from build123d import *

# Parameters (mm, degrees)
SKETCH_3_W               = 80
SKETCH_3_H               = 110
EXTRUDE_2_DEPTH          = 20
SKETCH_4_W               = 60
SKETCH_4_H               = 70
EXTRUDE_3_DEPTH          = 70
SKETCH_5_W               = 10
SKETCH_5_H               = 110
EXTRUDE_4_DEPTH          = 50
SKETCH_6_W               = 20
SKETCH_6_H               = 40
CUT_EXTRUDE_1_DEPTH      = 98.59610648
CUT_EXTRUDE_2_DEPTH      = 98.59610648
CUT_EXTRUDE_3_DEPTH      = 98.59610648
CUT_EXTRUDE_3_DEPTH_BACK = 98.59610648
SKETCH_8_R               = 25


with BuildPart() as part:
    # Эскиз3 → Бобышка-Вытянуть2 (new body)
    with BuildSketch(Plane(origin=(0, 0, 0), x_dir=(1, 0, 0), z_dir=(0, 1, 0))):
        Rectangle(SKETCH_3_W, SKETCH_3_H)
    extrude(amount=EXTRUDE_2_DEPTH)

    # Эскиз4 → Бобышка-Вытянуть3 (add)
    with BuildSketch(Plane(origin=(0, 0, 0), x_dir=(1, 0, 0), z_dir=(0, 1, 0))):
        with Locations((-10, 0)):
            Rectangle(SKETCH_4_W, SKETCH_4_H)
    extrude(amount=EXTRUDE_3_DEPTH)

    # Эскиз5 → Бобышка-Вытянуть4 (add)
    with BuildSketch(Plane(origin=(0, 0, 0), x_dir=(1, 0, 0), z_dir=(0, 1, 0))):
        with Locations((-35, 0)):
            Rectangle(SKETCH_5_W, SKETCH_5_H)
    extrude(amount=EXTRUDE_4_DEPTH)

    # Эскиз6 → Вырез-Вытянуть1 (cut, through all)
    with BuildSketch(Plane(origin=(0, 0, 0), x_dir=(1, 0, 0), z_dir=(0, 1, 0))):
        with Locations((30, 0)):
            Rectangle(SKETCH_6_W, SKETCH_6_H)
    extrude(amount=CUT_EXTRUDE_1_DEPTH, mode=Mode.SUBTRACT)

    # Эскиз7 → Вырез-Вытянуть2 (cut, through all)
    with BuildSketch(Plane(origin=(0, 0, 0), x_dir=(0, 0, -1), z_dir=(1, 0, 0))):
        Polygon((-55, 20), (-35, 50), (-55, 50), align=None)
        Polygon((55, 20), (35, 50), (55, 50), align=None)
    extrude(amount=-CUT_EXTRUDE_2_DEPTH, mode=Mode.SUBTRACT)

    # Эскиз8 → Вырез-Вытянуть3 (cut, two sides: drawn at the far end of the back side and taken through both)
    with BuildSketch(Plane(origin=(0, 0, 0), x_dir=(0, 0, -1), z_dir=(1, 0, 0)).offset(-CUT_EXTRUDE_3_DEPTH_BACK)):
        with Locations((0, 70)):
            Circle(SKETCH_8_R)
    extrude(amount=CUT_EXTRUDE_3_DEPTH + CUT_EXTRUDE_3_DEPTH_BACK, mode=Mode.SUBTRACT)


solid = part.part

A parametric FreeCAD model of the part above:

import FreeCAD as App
import Part
import Sketcher
Q = App.Units.Quantity


def add_polygon(sketch, points):
    """Adds a closed chain of lines whose ends are joined by coincident constraints."""
    first, n = sketch.GeometryCount, len(points)
    for a, b in zip(points, points[1:] + points[:1]):
        sketch.addGeometry(Part.LineSegment(App.Vector(*a, 0), App.Vector(*b, 0)), False)
    for i in range(n):
        sketch.addConstraint(Sketcher.Constraint("Coincident", first + i, 2, first + (i + 1) % n, 1))

doc = App.newDocument("Part")
params = doc.addObject("Spreadsheet::Sheet", "Params")
for row, (alias, value) in enumerate([
    ("sketch1_width", "80 mm"),
    ("sketch1_height", "110 mm"),
    ("pad1_length", "20 mm"),
    ("sketch2_width", "60 mm"),
    ("sketch2_height", "70 mm"),
    ("pad2_length", "70 mm"),
    ("sketch3_width", "10 mm"),
    ("sketch3_height", "110 mm"),
    ("pad3_length", "50 mm"),
    ("sketch4_width", "20 mm"),
    ("sketch4_height", "40 mm"),
    ("sketch5_width", "30 mm"),
    ("sketch5_height", "20 mm"),
    ("sketch6_diameter", "50 mm"),
], start=1):
    params.set(f"A{row}", alias)
    params.set(f"B{row}", "=" + value)
    params.setAlias(f"B{row}", alias)

body = doc.addObject("PartDesign::Body", "Body")

# Sketch on XZ plane
sketch1 = body.newObject("Sketcher::SketchObject", "Sketch")
sketch1.AttachmentSupport = (doc.getObject("XZ_Plane"), [""])
sketch1.MapMode = "FlatFace"
add_polygon(sketch1, [(-40, -55), (-40, 55), (40, 55), (40, -55)])  # lines 0-3
sketch1.addConstraint(Sketcher.Constraint("Vertical", 0))
sketch1.addConstraint(Sketcher.Constraint("Horizontal", 1))
sketch1.addConstraint(Sketcher.Constraint("Vertical", 2))
sketch1.addConstraint(Sketcher.Constraint("Horizontal", 3))
sketch1.addConstraint(Sketcher.Constraint("Symmetric", 0, 2, 2, 2, -1, 1))
sketch1.addConstraint(Sketcher.Constraint("DistanceX", 1, 1, 1, 2, Q("80 mm")))
sketch1.addConstraint(Sketcher.Constraint("DistanceY", 0, 1, 0, 2, Q("110 mm")))
sketch1.setExpression("Constraints[9]", "Params.sketch1_width")
sketch1.setExpression("Constraints[10]", "Params.sketch1_height")
pad1 = body.newObject("PartDesign::Pad", "Pad")
pad1.Profile = sketch1
pad1.setExpression("Length", "Params.pad1_length")
pad1.Reversed = True

# Sketch on XZ plane
sketch2 = body.newObject("Sketcher::SketchObject", "Sketch001")
sketch2.AttachmentSupport = (doc.getObject("XZ_Plane"), [""])
sketch2.MapMode = "FlatFace"
add_polygon(sketch2, [(-40, -35), (-40, 35), (20, 35), (20, -35)])  # lines 0-3
sketch2.addConstraint(Sketcher.Constraint("Vertical", 0))
sketch2.addConstraint(Sketcher.Constraint("Horizontal", 1))
sketch2.addConstraint(Sketcher.Constraint("Vertical", 2))
sketch2.addConstraint(Sketcher.Constraint("Horizontal", 3))
sketch2.addConstraint(Sketcher.Constraint("DistanceX", 1, 1, 1, 2, Q("60 mm")))
sketch2.addConstraint(Sketcher.Constraint("DistanceY", 0, 1, 0, 2, Q("70 mm")))
sketch2.addConstraint(Sketcher.Constraint("DistanceX", 0, 2, -1, 1, Q("40 mm")))
sketch2.addConstraint(Sketcher.Constraint("DistanceY", -1, 1, 0, 2, Q("35 mm")))
sketch2.setExpression("Constraints[8]", "Params.sketch2_width")
sketch2.setExpression("Constraints[9]", "Params.sketch2_height")
pad2 = body.newObject("PartDesign::Pad", "Pad001")
pad2.Profile = sketch2
pad2.setExpression("Length", "Params.pad2_length")
pad2.Reversed = True

# Sketch on XZ plane
sketch3 = body.newObject("Sketcher::SketchObject", "Sketch002")
sketch3.AttachmentSupport = (doc.getObject("XZ_Plane"), [""])
sketch3.MapMode = "FlatFace"
add_polygon(sketch3, [(-40, -55), (-40, 55), (-30, 55), (-30, -55)])  # lines 0-3
sketch3.addConstraint(Sketcher.Constraint("Vertical", 0))
sketch3.addConstraint(Sketcher.Constraint("Horizontal", 1))
sketch3.addConstraint(Sketcher.Constraint("Vertical", 2))
sketch3.addConstraint(Sketcher.Constraint("Horizontal", 3))
sketch3.addConstraint(Sketcher.Constraint("DistanceX", 1, 1, 1, 2, Q("10 mm")))
sketch3.addConstraint(Sketcher.Constraint("DistanceY", 0, 1, 0, 2, Q("110 mm")))
sketch3.addConstraint(Sketcher.Constraint("DistanceX", 0, 2, -1, 1, Q("40 mm")))
sketch3.addConstraint(Sketcher.Constraint("DistanceY", -1, 1, 0, 2, Q("55 mm")))
sketch3.setExpression("Constraints[8]", "Params.sketch3_width")
sketch3.setExpression("Constraints[9]", "Params.sketch3_height")
pad3 = body.newObject("PartDesign::Pad", "Pad002")
pad3.Profile = sketch3
pad3.setExpression("Length", "Params.pad3_length")
pad3.Reversed = True

# Sketch on XZ plane
sketch4 = body.newObject("Sketcher::SketchObject", "Sketch003")
sketch4.AttachmentSupport = (doc.getObject("XZ_Plane"), [""])
sketch4.MapMode = "FlatFace"
add_polygon(sketch4, [(20, -20), (20, 20), (40, 20), (40, -20)])  # lines 0-3
sketch4.addConstraint(Sketcher.Constraint("Vertical", 0))
sketch4.addConstraint(Sketcher.Constraint("Horizontal", 1))
sketch4.addConstraint(Sketcher.Constraint("Vertical", 2))
sketch4.addConstraint(Sketcher.Constraint("Horizontal", 3))
sketch4.addConstraint(Sketcher.Constraint("DistanceX", 1, 1, 1, 2, Q("20 mm")))
sketch4.addConstraint(Sketcher.Constraint("DistanceY", 0, 1, 0, 2, Q("40 mm")))
sketch4.addConstraint(Sketcher.Constraint("DistanceX", -1, 1, 0, 2, Q("20 mm")))
sketch4.addConstraint(Sketcher.Constraint("DistanceY", -1, 1, 0, 2, Q("20 mm")))
sketch4.setExpression("Constraints[8]", "Params.sketch4_width")
sketch4.setExpression("Constraints[9]", "Params.sketch4_height")
pocket1 = body.newObject("PartDesign::Pocket", "Pocket")
pocket1.Profile = sketch4
pocket1.Type = "ThroughAll"

# Sketch on YZ plane
sketch5 = body.newObject("Sketcher::SketchObject", "Sketch004")
sketch5.AttachmentSupport = (doc.getObject("YZ_Plane"), [""])
sketch5.MapMode = "FlatFace"
add_polygon(sketch5, [(20, 55), (50, 35), (50, 55)])  # lines 0-2
add_polygon(sketch5, [(50, -35), (20, -55), (50, -55)])  # lines 3-5
sketch5.addConstraint(Sketcher.Constraint("Vertical", 1))
sketch5.addConstraint(Sketcher.Constraint("Horizontal", 2))
sketch5.addConstraint(Sketcher.Constraint("Horizontal", 4))
sketch5.addConstraint(Sketcher.Constraint("Vertical", 5))
sketch5.addConstraint(Sketcher.Constraint("Symmetric", 2, 2, 3, 2, -1))
sketch5.addConstraint(Sketcher.Constraint("Symmetric", 0, 2, 5, 2, -1))
sketch5.addConstraint(Sketcher.Constraint("DistanceX", 2, 2, 2, 1, Q("30 mm")))
sketch5.addConstraint(Sketcher.Constraint("DistanceY", 1, 1, 1, 2, Q("20 mm")))
sketch5.addConstraint(Sketcher.Constraint("DistanceX", -1, 1, 0, 2, Q("50 mm")))
sketch5.addConstraint(Sketcher.Constraint("DistanceY", -1, 1, 0, 2, Q("35 mm")))
sketch5.setExpression("Constraints[12]", "Params.sketch5_width")
sketch5.setExpression("Constraints[13]", "Params.sketch5_height")
pocket2 = body.newObject("PartDesign::Pocket", "Pocket001")
pocket2.Profile = sketch5
pocket2.Type = "ThroughAll"

# Sketch on YZ plane
sketch6 = body.newObject("Sketcher::SketchObject", "Sketch005")
sketch6.AttachmentSupport = (doc.getObject("YZ_Plane"), [""])
sketch6.MapMode = "FlatFace"
sketch6.addGeometry(Part.Circle(App.Vector(70, 0, 0), App.Vector(0, 0, 1), 25), False)
sketch6.addConstraint(Sketcher.Constraint("PointOnObject", 0, 3, -1))
sketch6.addConstraint(Sketcher.Constraint("Diameter", 0, Q("50 mm")))
sketch6.addConstraint(Sketcher.Constraint("DistanceX", -1, 1, 0, 3, Q("70 mm")))
sketch6.setExpression("Constraints[1]", "Params.sketch6_diameter")
pocket3 = body.newObject("PartDesign::Pocket", "Pocket002")
pocket3.Profile = sketch6
pocket3.Type = "ThroughAll"
pocket3.Midplane = True

doc.recompute()
